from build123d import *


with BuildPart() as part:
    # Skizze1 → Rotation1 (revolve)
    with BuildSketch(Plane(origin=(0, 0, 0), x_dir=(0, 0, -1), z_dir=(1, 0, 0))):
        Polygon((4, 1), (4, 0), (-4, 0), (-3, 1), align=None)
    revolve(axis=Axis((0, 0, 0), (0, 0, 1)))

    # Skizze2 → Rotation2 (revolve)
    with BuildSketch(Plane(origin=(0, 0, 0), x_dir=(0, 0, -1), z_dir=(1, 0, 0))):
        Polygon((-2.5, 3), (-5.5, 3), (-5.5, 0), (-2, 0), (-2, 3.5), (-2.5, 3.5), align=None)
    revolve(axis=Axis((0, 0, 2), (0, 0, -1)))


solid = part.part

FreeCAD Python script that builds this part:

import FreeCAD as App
import Part
import Sketcher

doc = App.newDocument("Part")
params = doc.addObject("Spreadsheet::Sheet", "Params")
for row, (alias, value) in enumerate([
    ("sketch1_width", "1 mm"),
    ("sketch1_height", "7 mm"),
    ("sketch1_height2", "8 mm"),
    ("revolution_angle", "360 deg"),
    ("sketch2_width", "3 mm"),
    ("sketch2_width2", "3.5 mm"),
    ("revolution2_angle", "360 deg"),
], start=1):
    params.set(f"A{row}", alias)
    params.set(f"B{row}", "=" + value)
    params.setAlias(f"B{row}", alias)

body = doc.addObject("PartDesign::Body", "Body")

# Sketch on YZ plane
sketch1 = body.newObject("Sketcher::SketchObject", "Sketch")
sketch1.AttachmentSupport = (doc.getObject("YZ_Plane"), [""])
sketch1.MapMode = "FlatFace"
sketch1.addGeometry(Part.LineSegment(App.Vector(0, -4, 0), App.Vector(1, -4, 0)), False)
sketch1.addGeometry(Part.LineSegment(App.Vector(1, -4, 0), App.Vector(1, 3, 0)), False)
sketch1.addGeometry(Part.LineSegment(App.Vector(1, 3, 0), App.Vector(0, 4, 0)), False)
sketch1.addGeometry(Part.LineSegment(App.Vector(0, 4, 0), App.Vector(0, -4, 0)), False)
sketch1.addConstraint(Sketcher.Constraint("Coincident", 0, 2, 1, 1))
sketch1.addConstraint(Sketcher.Constraint("Coincident", 1, 2, 2, 1))
sketch1.addConstraint(Sketcher.Constraint("Coincident", 2, 2, 3, 1))
sketch1.addConstraint(Sketcher.Constraint("Coincident", 3, 2, 0, 1))
sketch1.addConstraint(Sketcher.Constraint("Horizontal", 0))
sketch1.addConstraint(Sketcher.Constraint("Vertical", 1))
sketch1.addConstraint(Sketcher.Constraint("Vertical", 3))
sketch1.addConstraint(Sketcher.Constraint("Symmetric", 2, 2, 3, 2, -1, 1))
sketch1.addConstraint(Sketcher.Constraint("DistanceX", 0, 1, 0, 2, 1.0))
sketch1.addConstraint(Sketcher.Constraint("DistanceY", 1, 1, 1, 2, 7.0))
sketch1.addConstraint(Sketcher.Constraint("DistanceY", 3, 2, 3, 1, 8.0))
sketch1.setExpression("Constraints[8]", "Params.sketch1_width")
sketch1.setExpression("Constraints[9]", "Params.sketch1_height")
sketch1.setExpression("Constraints[10]", "Params.sketch1_height2")
revolution = body.newObject("PartDesign::Revolution", "Revolution")
revolution.Profile = sketch1
revolution.ReferenceAxis = (sketch1, ["V_Axis"])
revolution.setExpression("Angle", "Params.revolution_angle")

# Sketch on YZ plane
sketch2 = body.newObject("Sketcher::SketchObject", "Sketch001")
sketch2.AttachmentSupport = (doc.getObject("YZ_Plane"), [""])
sketch2.MapMode = "FlatFace"
sketch2.addGeometry(Part.LineSegment(App.Vector(3, 2.5, 0), App.Vector(3, 5.5, 0)), False)
sketch2.addGeometry(Part.LineSegment(App.Vector(3, 5.5, 0), App.Vector(0, 5.5, 0)), False)
sketch2.addGeometry(Part.LineSegment(App.Vector(0, 5.5, 0), App.Vector(0, 2, 0)), False)
sketch2.addGeometry(Part.LineSegment(App.Vector(0, 2, 0), App.Vector(3.5, 2, 0)), False)
sketch2.addGeometry(Part.LineSegment(App.Vector(3.5, 2, 0), App.Vector(3.5, 2.5, 0)), False)
sketch2.addGeometry(Part.LineSegment(App.Vector(3.5, 2.5, 0), App.Vector(3, 2.5, 0)), False)
sketch2.addConstraint(Sketcher.Constraint("Coincident", 0, 2, 1, 1))
sketch2.addConstraint(Sketcher.Constraint("Coincident", 1, 2, 2, 1))
sketch2.addConstraint(Sketcher.Constraint("Coincident", 2, 2, 3, 1))
sketch2.addConstraint(Sketcher.Constraint("Coincident", 3, 2, 4, 1))
sketch2.addConstraint(Sketcher.Constraint("Coincident", 4, 2, 5, 1))
sketch2.addConstraint(Sketcher.Constraint("Coincident", 5, 2, 0, 1))
sketch2.addConstraint(Sketcher.Constraint("Vertical", 0))
sketch2.addConstraint(Sketcher.Constraint("Horizontal", 1))
sketch2.addConstraint(Sketcher.Constraint("Vertical", 2))
sketch2.addConstraint(Sketcher.Constraint("Horizontal", 3))
sketch2.addConstraint(Sketcher.Constraint("Vertical", 4))
sketch2.addConstraint(Sketcher.Constraint("Horizontal", 5))
sketch2.addConstraint(Sketcher.Constraint("PointOnObject", 1, 2, -2))
sketch2.addConstraint(Sketcher.Constraint("Equal", 1, 0))
sketch2.addConstraint(Sketcher.Constraint("Equal", 3, 2))
sketch2.addConstraint(Sketcher.Constraint("DistanceX", 1, 2, 1, 1, 3.0))
sketch2.addConstraint(Sketcher.Constraint("DistanceX", 3, 1, 3, 2, 3.5))
sketch2.addConstraint(Sketcher.Constraint("DistanceY", -1, 1, 2, 2, 2.0))
sketch2.setExpression("Constraints[15]", "Params.sketch2_width")
sketch2.setExpression("Constraints[16]", "Params.sketch2_width2")
revolution2 = body.newObject("PartDesign::Revolution", "Revolution001")
revolution2.Profile = sketch2
revolution2.ReferenceAxis = (sketch2, ["V_Axis"])
revolution2.setExpression("Angle", "Params.revolution2_angle")

doc.recompute()
